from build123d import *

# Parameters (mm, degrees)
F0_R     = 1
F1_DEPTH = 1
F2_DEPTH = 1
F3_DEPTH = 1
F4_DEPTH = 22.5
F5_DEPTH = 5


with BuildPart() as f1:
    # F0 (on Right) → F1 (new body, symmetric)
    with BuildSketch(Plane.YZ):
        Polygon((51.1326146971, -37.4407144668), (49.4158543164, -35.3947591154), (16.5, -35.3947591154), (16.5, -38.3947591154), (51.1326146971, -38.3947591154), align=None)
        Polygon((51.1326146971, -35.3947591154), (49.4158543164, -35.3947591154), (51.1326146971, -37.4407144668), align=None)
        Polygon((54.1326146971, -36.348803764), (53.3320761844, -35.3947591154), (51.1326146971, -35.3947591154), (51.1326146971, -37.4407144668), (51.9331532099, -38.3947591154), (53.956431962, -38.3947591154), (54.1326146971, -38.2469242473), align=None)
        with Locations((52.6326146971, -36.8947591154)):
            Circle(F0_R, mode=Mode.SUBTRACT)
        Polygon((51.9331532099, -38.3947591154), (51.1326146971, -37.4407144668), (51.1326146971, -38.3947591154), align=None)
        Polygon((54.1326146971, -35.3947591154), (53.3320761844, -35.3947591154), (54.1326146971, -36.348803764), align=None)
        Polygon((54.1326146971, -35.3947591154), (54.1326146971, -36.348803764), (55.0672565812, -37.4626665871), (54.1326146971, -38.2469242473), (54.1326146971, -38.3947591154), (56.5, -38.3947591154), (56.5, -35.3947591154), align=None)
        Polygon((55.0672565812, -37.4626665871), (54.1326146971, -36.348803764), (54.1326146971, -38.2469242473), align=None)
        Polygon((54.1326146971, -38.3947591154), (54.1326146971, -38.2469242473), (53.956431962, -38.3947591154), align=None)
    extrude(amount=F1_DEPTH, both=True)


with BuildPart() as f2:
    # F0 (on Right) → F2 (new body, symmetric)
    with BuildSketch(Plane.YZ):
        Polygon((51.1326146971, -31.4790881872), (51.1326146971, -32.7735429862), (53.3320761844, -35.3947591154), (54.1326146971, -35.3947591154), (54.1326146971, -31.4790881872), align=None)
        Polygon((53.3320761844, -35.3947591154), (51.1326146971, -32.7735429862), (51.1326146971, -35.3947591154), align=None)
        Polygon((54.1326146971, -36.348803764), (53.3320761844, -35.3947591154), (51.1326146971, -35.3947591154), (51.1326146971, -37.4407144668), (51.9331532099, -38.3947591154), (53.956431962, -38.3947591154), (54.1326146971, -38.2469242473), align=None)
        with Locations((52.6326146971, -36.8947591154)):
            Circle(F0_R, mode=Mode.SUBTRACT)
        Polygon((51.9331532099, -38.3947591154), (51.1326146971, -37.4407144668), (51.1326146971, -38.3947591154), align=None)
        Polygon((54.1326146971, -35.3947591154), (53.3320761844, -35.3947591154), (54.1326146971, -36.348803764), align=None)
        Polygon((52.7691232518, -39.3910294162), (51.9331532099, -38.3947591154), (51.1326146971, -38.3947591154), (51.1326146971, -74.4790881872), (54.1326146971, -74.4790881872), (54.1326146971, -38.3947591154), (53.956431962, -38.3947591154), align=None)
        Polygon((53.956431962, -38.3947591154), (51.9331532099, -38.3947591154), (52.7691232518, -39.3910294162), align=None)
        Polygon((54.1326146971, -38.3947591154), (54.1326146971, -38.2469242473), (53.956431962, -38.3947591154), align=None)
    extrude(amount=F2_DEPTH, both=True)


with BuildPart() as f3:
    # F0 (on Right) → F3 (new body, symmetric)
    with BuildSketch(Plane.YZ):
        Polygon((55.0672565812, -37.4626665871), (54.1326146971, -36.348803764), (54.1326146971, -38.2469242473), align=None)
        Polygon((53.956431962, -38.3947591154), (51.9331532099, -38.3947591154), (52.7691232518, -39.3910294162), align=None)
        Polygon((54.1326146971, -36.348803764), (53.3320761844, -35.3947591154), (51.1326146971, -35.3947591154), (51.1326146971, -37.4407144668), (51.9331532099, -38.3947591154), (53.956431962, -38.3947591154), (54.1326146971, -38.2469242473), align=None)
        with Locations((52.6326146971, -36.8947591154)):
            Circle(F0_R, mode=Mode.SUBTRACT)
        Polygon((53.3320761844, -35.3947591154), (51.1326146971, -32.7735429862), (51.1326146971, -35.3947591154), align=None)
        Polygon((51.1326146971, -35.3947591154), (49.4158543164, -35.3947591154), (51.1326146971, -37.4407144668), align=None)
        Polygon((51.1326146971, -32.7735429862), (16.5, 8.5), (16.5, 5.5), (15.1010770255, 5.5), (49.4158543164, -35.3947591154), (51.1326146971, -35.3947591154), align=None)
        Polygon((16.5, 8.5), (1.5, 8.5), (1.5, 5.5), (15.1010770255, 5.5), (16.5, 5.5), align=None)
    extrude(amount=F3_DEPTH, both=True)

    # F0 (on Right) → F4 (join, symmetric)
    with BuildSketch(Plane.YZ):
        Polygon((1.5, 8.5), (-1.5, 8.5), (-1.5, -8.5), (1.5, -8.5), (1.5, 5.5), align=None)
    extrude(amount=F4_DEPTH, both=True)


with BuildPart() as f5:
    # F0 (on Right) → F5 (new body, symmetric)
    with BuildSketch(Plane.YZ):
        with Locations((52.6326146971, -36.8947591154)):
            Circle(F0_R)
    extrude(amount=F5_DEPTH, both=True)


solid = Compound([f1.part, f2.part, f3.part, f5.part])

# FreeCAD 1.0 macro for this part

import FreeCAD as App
import Part
import Sketcher
Q = App.Units.Quantity


def add_polygon(sketch, points):
    """Adds a closed chain of lines whose ends are joined by coincident constraints."""
    first, n = sketch.GeometryCount, len(points)
    for a, b in zip(points, points[1:] + points[:1]):
        sketch.addGeometry(Part.LineSegment(App.Vector(*a, 0), App.Vector(*b, 0)), False)
    for i in range(n):
        sketch.addConstraint(Sketcher.Constraint("Coincident", first + i, 2, first + (i + 1) % n, 1))

doc = App.newDocument("Part")
body = doc.addObject("PartDesign::Body", "Body")

sketch1 = body.newObject("Sketcher::SketchObject", "Sketch")
sketch1.AttachmentSupport = (doc.getObject("YZ_Plane"), [""])
sketch1.MapMode = "FlatFace"
add_polygon(sketch1, [(56.5, -38.4), (56.5, -35.4), (16.5, -35.4), (16.5, -38.4)])
sketch1.addGeometry(Part.Circle(App.Vector(52.6, -36.9, 0), App.Vector(0, 0, 1), 1), False)
sketch1.addConstraint([
    Sketcher.Constraint("Vertical", 0),
    Sketcher.Constraint("Horizontal", 1),
    Sketcher.Constraint("Vertical", 2),
    Sketcher.Constraint("Horizontal", 3),
    Sketcher.Constraint("Diameter", 4, 2.0),
    Sketcher.Constraint("DistanceX", 1, 2, 1, 1, 40.0),
    Sketcher.Constraint("DistanceY", 0, 1, 0, 2, 3.0),
    Sketcher.Constraint("DistanceX", -1, 1, 0, 2, 56.5),
    Sketcher.Constraint("DistanceY", 4, 3, 0, 2, 1.5),
    Sketcher.Constraint("DistanceY", 4, 3, -1, 1, 36.894759),
    Sketcher.Constraint("DistanceX", -1, 1, 4, 3, 52.632615),
])
pad1 = body.newObject("PartDesign::Pad", "Pad")
pad1.Profile = sketch1
pad1.Length = 2
pad1.Midplane = True
body2 = doc.addObject("PartDesign::Body", "Body001")

sketch2 = body2.newObject("Sketcher::SketchObject", "Sketch001")
sketch2.AttachmentSupport = (doc.getObject("YZ_Plane001"), [""])
sketch2.MapMode = "FlatFace"
add_polygon(sketch2, [(54.1, -31.5), (51.1, -31.5), (51.1, -74.5), (54.1, -74.5)])
sketch2.addGeometry(Part.Circle(App.Vector(52.6, -36.9, 0), App.Vector(0, 0, 1), 1), False)
sketch2.addConstraint([
    Sketcher.Constraint("Horizontal", 0),
    Sketcher.Constraint("Vertical", 1),
    Sketcher.Constraint("Horizontal", 2),
    Sketcher.Constraint("Vertical", 3),
    Sketcher.Constraint("Diameter", 4, 2.0),
    Sketcher.Constraint("DistanceX", 0, 2, 0, 1, 3.0),
    Sketcher.Constraint("DistanceY", 1, 2, 1, 1, 43.0),
    Sketcher.Constraint("DistanceX", 0, 2, 4, 3, 1.5),
    Sketcher.Constraint("DistanceY", 4, 3, -1, 1, 36.894759),
    Sketcher.Constraint("DistanceY", 0, 2, -1, 1, 31.479088),
    Sketcher.Constraint("DistanceX", -1, 1, 4, 3, 52.632615),
])
pad2 = body2.newObject("PartDesign::Pad", "Pad001")
pad2.Profile = sketch2
pad2.Length = 2
pad2.Midplane = True
body3 = doc.addObject("PartDesign::Body", "Body002")

sketch3 = body3.newObject("Sketcher::SketchObject", "Sketch002")
sketch3.AttachmentSupport = (doc.getObject("YZ_Plane002"), [""])
sketch3.MapMode = "FlatFace"
add_polygon(sketch3, [(55.07, -37.46), (54.13, -36.35), (53.33, -35.39), (51.13, -32.77), (16.5, 8.5), (1.5, 8.5), (1.5, 5.5), (15.1, 5.5), (49.42, -35.39), (51.13, -37.44), (51.93, -38.39), (52.77, -39.39), (53.96, -38.39), (54.13, -38.25)])
sketch3.addGeometry(Part.Circle(App.Vector(52.63, -36.89, 0), App.Vector(0, 0, 1), 1), False)
sketch3.addConstraint([
    Sketcher.Constraint("Horizontal", 4),
    Sketcher.Constraint("Vertical", 5),
    Sketcher.Constraint("Horizontal", 6),
    Sketcher.Constraint("Parallel", 0, 1),
    Sketcher.Constraint("Parallel", 1, 2),
    Sketcher.Constraint("Parallel", 2, 3),
    Sketcher.Constraint("Parallel", 3, 7),
    Sketcher.Constraint("Parallel", 7, 8),
    Sketcher.Constraint("Parallel", 8, 9),
    Sketcher.Constraint("Parallel", 9, 10),
    Sketcher.Constraint("Perpendicular", 10, 11),
    Sketcher.Constraint("Parallel", 11, 12),
    Sketcher.Constraint("Parallel", 12, 13),
    Sketcher.Constraint("Horizontal", 1, 2, 7, 2),
    Sketcher.Constraint("Horizontal", 9, 2, 11, 2),
    Sketcher.Constraint("Vertical", 2, 2, 8, 2),
    Sketcher.Constraint("Vertical", 0, 2, 12, 2),
    Sketcher.Constraint("Equal", 1, 9),
    Sketcher.Constraint("Diameter", 14, 2.0),
    Sketcher.Constraint("DistanceX", 4, 2, 4, 1, 15.0),
    Sketcher.Constraint("DistanceY", 5, 2, 5, 1, 3.0),
    Sketcher.Constraint("Angle", 0, Q("130 deg")),
    Sketcher.Constraint("DistanceX", 2, 2, 0, 2, 3.0),
    Sketcher.Constraint("DistanceY", 9, 2, 1, 2, 3.0),
    Sketcher.Constraint("DistanceX", -1, 1, 3, 2, 16.5),
    Sketcher.Constraint("DistanceY", -1, 1, 3, 2, 8.5),
    Sketcher.Constraint("DistanceX", 14, 3, 0, 2, 1.5),
    Sketcher.Constraint("DistanceY", 14, 3, 1, 2, 1.5),
    Sketcher.Constraint("DistanceX", 6, 2, 1, 2, 38.230999),
    Sketcher.Constraint("Distance", 10, 1.300539),
    Sketcher.Constraint("Distance", 12, 0.22999),
])
pad3 = body3.newObject("PartDesign::Pad", "Pad002")
pad3.Profile = sketch3
pad3.Length = 2
pad3.Midplane = True

sketch4 = body3.newObject("Sketcher::SketchObject", "Sketch003")
sketch4.AttachmentSupport = (doc.getObject("YZ_Plane002"), [""])
sketch4.MapMode = "FlatFace"
add_polygon(sketch4, [(1.5, 8.5), (-1.5, 8.5), (-1.5, -8.5), (1.5, -8.5)])
sketch4.addConstraint([
    Sketcher.Constraint("Horizontal", 0),
    Sketcher.Constraint("Vertical", 1),
    Sketcher.Constraint("Horizontal", 2),
    Sketcher.Constraint("Vertical", 3),
    Sketcher.Constraint("Symmetric", 0, 2, 2, 2, -1, 1),
    Sketcher.Constraint("DistanceX", 0, 2, 0, 1, 3.0),
    Sketcher.Constraint("DistanceY", 1, 2, 1, 1, 17.0),
])
pad4 = body3.newObject("PartDesign::Pad", "Pad003")
pad4.Profile = sketch4
pad4.Length = 45
pad4.Midplane = True
body4 = doc.addObject("PartDesign::Body", "Body003")

sketch5 = body4.newObject("Sketcher::SketchObject", "Sketch004")
sketch5.AttachmentSupport = (doc.getObject("YZ_Plane003"), [""])
sketch5.MapMode = "FlatFace"
sketch5.addGeometry(Part.Circle(App.Vector(52.6, -36.9, 0), App.Vector(0, 0, 1), 1), False)
sketch5.addConstraint([
    Sketcher.Constraint("Diameter", 0, 2.0),
    Sketcher.Constraint("DistanceY", 0, 3, -1, 1, 36.894759),
    Sketcher.Constraint("DistanceX", -1, 1, 0, 3, 52.632615),
])
pad5 = body4.newObject("PartDesign::Pad", "Pad004")
pad5.Profile = sketch5
pad5.Length = 10
pad5.Midplane = True

doc.recompute()
